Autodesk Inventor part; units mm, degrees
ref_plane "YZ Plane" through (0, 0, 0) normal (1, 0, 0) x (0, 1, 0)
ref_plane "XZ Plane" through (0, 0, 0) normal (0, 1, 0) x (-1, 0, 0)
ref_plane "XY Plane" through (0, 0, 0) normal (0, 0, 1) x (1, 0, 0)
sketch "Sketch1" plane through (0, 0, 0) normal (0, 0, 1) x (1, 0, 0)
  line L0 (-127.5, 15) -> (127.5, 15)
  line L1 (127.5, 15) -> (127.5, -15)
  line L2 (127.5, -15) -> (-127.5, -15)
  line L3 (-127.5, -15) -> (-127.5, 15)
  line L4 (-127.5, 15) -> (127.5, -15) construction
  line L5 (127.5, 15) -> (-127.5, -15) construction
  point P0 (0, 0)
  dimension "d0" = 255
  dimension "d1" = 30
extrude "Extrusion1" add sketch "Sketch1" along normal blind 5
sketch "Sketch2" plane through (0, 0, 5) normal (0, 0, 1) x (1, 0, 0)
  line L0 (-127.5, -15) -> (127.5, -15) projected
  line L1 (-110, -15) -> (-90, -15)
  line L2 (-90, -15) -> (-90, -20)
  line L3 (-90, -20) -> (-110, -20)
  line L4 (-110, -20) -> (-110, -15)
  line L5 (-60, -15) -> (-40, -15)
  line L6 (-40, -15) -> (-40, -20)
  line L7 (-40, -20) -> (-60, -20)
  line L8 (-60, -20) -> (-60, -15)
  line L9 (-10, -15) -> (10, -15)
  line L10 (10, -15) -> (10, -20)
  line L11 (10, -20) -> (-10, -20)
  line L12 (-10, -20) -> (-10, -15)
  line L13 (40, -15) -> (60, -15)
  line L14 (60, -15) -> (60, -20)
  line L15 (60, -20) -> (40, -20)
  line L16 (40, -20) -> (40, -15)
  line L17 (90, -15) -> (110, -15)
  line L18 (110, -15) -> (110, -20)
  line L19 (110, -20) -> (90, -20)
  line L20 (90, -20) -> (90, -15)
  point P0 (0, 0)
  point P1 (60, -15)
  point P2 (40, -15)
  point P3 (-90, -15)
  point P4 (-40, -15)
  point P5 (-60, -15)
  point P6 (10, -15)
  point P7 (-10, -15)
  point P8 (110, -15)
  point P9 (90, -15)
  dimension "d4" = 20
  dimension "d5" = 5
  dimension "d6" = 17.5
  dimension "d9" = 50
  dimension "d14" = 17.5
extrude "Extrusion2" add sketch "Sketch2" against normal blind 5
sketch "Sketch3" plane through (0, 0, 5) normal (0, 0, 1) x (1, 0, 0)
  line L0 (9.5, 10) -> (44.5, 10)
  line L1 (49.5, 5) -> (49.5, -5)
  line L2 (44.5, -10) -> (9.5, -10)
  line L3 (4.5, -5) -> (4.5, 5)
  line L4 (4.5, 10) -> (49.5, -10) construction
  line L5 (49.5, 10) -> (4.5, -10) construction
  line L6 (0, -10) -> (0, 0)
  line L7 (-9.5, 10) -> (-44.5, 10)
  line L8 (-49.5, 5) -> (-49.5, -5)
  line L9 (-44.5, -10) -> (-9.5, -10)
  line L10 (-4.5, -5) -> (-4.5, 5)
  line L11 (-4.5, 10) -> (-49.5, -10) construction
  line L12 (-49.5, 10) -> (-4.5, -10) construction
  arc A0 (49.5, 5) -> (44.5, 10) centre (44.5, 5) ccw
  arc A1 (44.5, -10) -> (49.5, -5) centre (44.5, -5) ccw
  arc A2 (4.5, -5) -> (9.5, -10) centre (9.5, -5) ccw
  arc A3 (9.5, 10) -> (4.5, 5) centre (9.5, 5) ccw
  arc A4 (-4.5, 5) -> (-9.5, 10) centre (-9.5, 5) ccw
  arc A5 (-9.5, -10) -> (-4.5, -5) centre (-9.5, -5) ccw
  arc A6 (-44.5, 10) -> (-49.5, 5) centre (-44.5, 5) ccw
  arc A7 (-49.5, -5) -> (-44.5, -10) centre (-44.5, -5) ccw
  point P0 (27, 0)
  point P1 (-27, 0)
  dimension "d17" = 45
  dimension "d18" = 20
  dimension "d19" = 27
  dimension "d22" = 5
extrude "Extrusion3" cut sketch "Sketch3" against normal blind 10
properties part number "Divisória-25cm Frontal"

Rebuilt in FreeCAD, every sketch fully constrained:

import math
import FreeCAD as App
import Part
import Sketcher
from FreeCAD import Vector
Q = App.Units.Quantity


def add_polygon(sketch, points):
    """Adds a closed chain of lines whose ends are joined by coincident constraints."""
    first, n = sketch.GeometryCount, len(points)
    for a, b in zip(points, points[1:] + points[:1]):
        sketch.addGeometry(Part.LineSegment(App.Vector(*a, 0), App.Vector(*b, 0)), False)
    for i in range(n):
        sketch.addConstraint(Sketcher.Constraint("Coincident", first + i, 2, first + (i + 1) % n, 1))

doc = App.newDocument("Part")
body = doc.addObject("PartDesign::Body", "Body")

# Sketch on XY plane
sketch1 = body.newObject("Sketcher::SketchObject", "Sketch")
sketch1.AttachmentSupport = (doc.getObject("XY_Plane"), [""])
sketch1.MapMode = "FlatFace"
add_polygon(sketch1, [(127.5, 15), (-127.5, 15), (-127.5, -15), (127.5, -15)])  # lines 0-3
sketch1.addConstraint([
    Sketcher.Constraint("Horizontal", 0),
    Sketcher.Constraint("Vertical", 1),
    Sketcher.Constraint("Horizontal", 2),
    Sketcher.Constraint("Vertical", 3),
    Sketcher.Constraint("Symmetric", 0, 2, 2, 2, -1, 1),
    Sketcher.Constraint("DistanceX", 0, 2, 0, 1, Q("255 mm")),
    Sketcher.Constraint("DistanceY", 1, 2, 1, 1, Q("30 mm")),
])
pad1 = body.newObject("PartDesign::Pad", "Pad")
pad1.Profile = sketch1
pad1.Length = 5

# Sketch on XY plane
sketch2 = body.newObject("Sketcher::SketchObject", "Sketch001")
sketch2.AttachmentSupport = (doc.getObject("XY_Plane"), [""])
sketch2.MapMode = "FlatFace"
sketch2.AttachmentOffset = App.Placement(Vector(0, 0, 5), App.Rotation())
add_polygon(sketch2, [(110, -15), (90, -15), (90, -20), (110, -20)])  # lines 0-3
add_polygon(sketch2, [(60, -15), (40, -15), (40, -20), (60, -20)])  # lines 4-7
add_polygon(sketch2, [(10, -15), (-10, -15), (-10, -20), (10, -20)])  # lines 8-11
add_polygon(sketch2, [(-40, -15), (-60, -15), (-60, -20), (-40, -20)])  # lines 12-15
add_polygon(sketch2, [(-90, -15), (-110, -15), (-110, -20), (-90, -20)])  # lines 16-19
sketch2.addConstraint([
    Sketcher.Constraint("Horizontal", 0),
    Sketcher.Constraint("Vertical", 1),
    Sketcher.Constraint("Horizontal", 2),
    Sketcher.Constraint("Vertical", 3),
    Sketcher.Constraint("Horizontal", 4),
    Sketcher.Constraint("Vertical", 5),
    Sketcher.Constraint("Horizontal", 6),
    Sketcher.Constraint("Vertical", 7),
    Sketcher.Constraint("Horizontal", 8),
    Sketcher.Constraint("Vertical", 9),
    Sketcher.Constraint("Horizontal", 10),
    Sketcher.Constraint("Vertical", 11),
    Sketcher.Constraint("Horizontal", 12),
    Sketcher.Constraint("Vertical", 13),
    Sketcher.Constraint("Horizontal", 14),
    Sketcher.Constraint("Vertical", 15),
    Sketcher.Constraint("Horizontal", 16),
    Sketcher.Constraint("Vertical", 17),
    Sketcher.Constraint("Horizontal", 18),
    Sketcher.Constraint("Vertical", 19),
    Sketcher.Constraint("Symmetric", 7, 2, 12, 2, -2),
    Sketcher.Constraint("Symmetric", 5, 2, 14, 2, -2),
    Sketcher.Constraint("Symmetric", 3, 2, 16, 2, -2),
    Sketcher.Constraint("Symmetric", 1, 2, 18, 2, -2),
    Sketcher.Constraint("Horizontal", 3, 2, 4, 2),
    Sketcher.Constraint("Horizontal", 2, 2, 5, 2),
    Sketcher.Constraint("Horizontal", 7, 2, 8, 2),
    Sketcher.Constraint("Horizontal", 6, 2, 9, 2),
    Sketcher.Constraint("Equal", 2, 4),
    Sketcher.Constraint("Equal", 6, 8),
    Sketcher.Constraint("DistanceX", 0, 2, 0, 1, Q("20 mm")),
    Sketcher.Constraint("DistanceY", 1, 2, 1, 1, Q("5 mm")),
    Sketcher.Constraint("DistanceY", 1, 2, -1, 1, Q("20 mm")),
    Sketcher.Constraint("DistanceX", 8, 2, -1, 1, Q("10 mm")),
    Sketcher.Constraint("DistanceX", 4, 2, 0, 2, Q("50 mm")),
    Sketcher.Constraint("DistanceX", 8, 2, 4, 2, Q("50 mm")),
])
pad2 = body.newObject("PartDesign::Pad", "Pad001")
pad2.Profile = sketch2
pad2.Length = 5
pad2.Reversed = True

# Sketch on XY plane
sketch3 = body.newObject("Sketcher::SketchObject", "Sketch002")
sketch3.AttachmentSupport = (doc.getObject("XY_Plane"), [""])
sketch3.MapMode = "FlatFace"
sketch3.AttachmentOffset = App.Placement(Vector(0, 0, 5), App.Rotation())
sketch3.addGeometry([
    Part.LineSegment(Vector(44.5, 10, 0), Vector(9.5, 10, 0)),  # 0
    Part.ArcOfCircle(Part.Circle(Vector(9.5, 5, 0), Vector(0, 0, 1), 5), math.radians(90), math.radians(180)),  # 1
    Part.LineSegment(Vector(4.5, 5, 0), Vector(4.5, -5, 0)),  # 2
    Part.ArcOfCircle(Part.Circle(Vector(9.5, -5, 0), Vector(0, 0, 1), 5), math.radians(180), math.radians(270)),  # 3
    Part.LineSegment(Vector(9.5, -10, 0), Vector(44.5, -10, 0)),  # 4
    Part.ArcOfCircle(Part.Circle(Vector(44.5, -5, 0), Vector(0, 0, 1), 5), math.radians(-90), math.radians(0)),  # 5
    Part.LineSegment(Vector(49.5, -5, 0), Vector(49.5, 5, 0)),  # 6
    Part.ArcOfCircle(Part.Circle(Vector(44.5, 5, 0), Vector(0, 0, 1), 5), math.radians(0), math.radians(90)),  # 7
    Part.ArcOfCircle(Part.Circle(Vector(-9.5, 5, 0), Vector(0, 0, 1), 5), math.radians(0), math.radians(90)),  # 8
    Part.LineSegment(Vector(-9.5, 10, 0), Vector(-44.5, 10, 0)),  # 9
    Part.ArcOfCircle(Part.Circle(Vector(-44.5, 5, 0), Vector(0, 0, 1), 5), math.radians(90), math.radians(180)),  # 10
    Part.LineSegment(Vector(-49.5, 5, 0), Vector(-49.5, -5, 0)),  # 11
    Part.ArcOfCircle(Part.Circle(Vector(-44.5, -5, 0), Vector(0, 0, 1), 5), math.radians(180), math.radians(270)),  # 12
    Part.LineSegment(Vector(-44.5, -10, 0), Vector(-9.5, -10, 0)),  # 13
    Part.ArcOfCircle(Part.Circle(Vector(-9.5, -5, 0), Vector(0, 0, 1), 5), math.radians(-90), math.radians(0)),  # 14
    Part.LineSegment(Vector(-4.5, -5, 0), Vector(-4.5, 5, 0)),  # 15
], False)
sketch3.addConstraint([
    Sketcher.Constraint("Tangent", 0, 2, 1, 1),
    Sketcher.Constraint("Tangent", 1, 2, 2, 1),
    Sketcher.Constraint("Tangent", 2, 2, 3, 1),
    Sketcher.Constraint("Tangent", 3, 2, 4, 1),
    Sketcher.Constraint("Tangent", 4, 2, 5, 1),
    Sketcher.Constraint("Tangent", 5, 2, 6, 1),
    Sketcher.Constraint("Tangent", 6, 2, 7, 1),
    Sketcher.Constraint("Tangent", 7, 2, 0, 1),
    Sketcher.Constraint("Tangent", 8, 2, 9, 1),
    Sketcher.Constraint("Tangent", 9, 2, 10, 1),
    Sketcher.Constraint("Tangent", 10, 2, 11, 1),
    Sketcher.Constraint("Tangent", 11, 2, 12, 1),
    Sketcher.Constraint("Tangent", 12, 2, 13, 1),
    Sketcher.Constraint("Tangent", 13, 2, 14, 1),
    Sketcher.Constraint("Tangent", 14, 2, 15, 1),
    Sketcher.Constraint("Tangent", 15, 2, 8, 1),
    Sketcher.Constraint("Horizontal", 0),
    Sketcher.Constraint("Vertical", 2),
    Sketcher.Constraint("Horizontal", 4),
    Sketcher.Constraint("Vertical", 6),
    Sketcher.Constraint("Horizontal", 9),
    Sketcher.Constraint("Vertical", 11),
    Sketcher.Constraint("Horizontal", 13),
    Sketcher.Constraint("Vertical", 15),
    Sketcher.Constraint("Equal", 1, 3),
    Sketcher.Constraint("Equal", 3, 5),
    Sketcher.Constraint("Equal", 5, 7),
    Sketcher.Constraint("Equal", 7, 8),
    Sketcher.Constraint("Equal", 8, 10),
    Sketcher.Constraint("Equal", 10, 12),
    Sketcher.Constraint("Equal", 12, 14),
    Sketcher.Constraint("Symmetric", 3, 3, 8, 3, -1, 1),
    Sketcher.Constraint("Symmetric", 7, 3, 12, 3, -1, 1),
    Sketcher.Constraint("Horizontal", 7, 3, 8, 3),
    Sketcher.Constraint("Radius", 1, Q("5 mm")),
    Sketcher.Constraint("DistanceY", -1, 1, 1, 3, Q("5 mm")),
    Sketcher.Constraint("DistanceX", 0, 2, 0, 1, Q("35 mm")),
    Sketcher.Constraint("DistanceX", 8, 3, 1, 3, Q("19 mm")),
])
pocket1 = body.newObject("PartDesign::Pocket", "Pocket")
pocket1.Profile = sketch3
pocket1.Length = 10

doc.recompute()
